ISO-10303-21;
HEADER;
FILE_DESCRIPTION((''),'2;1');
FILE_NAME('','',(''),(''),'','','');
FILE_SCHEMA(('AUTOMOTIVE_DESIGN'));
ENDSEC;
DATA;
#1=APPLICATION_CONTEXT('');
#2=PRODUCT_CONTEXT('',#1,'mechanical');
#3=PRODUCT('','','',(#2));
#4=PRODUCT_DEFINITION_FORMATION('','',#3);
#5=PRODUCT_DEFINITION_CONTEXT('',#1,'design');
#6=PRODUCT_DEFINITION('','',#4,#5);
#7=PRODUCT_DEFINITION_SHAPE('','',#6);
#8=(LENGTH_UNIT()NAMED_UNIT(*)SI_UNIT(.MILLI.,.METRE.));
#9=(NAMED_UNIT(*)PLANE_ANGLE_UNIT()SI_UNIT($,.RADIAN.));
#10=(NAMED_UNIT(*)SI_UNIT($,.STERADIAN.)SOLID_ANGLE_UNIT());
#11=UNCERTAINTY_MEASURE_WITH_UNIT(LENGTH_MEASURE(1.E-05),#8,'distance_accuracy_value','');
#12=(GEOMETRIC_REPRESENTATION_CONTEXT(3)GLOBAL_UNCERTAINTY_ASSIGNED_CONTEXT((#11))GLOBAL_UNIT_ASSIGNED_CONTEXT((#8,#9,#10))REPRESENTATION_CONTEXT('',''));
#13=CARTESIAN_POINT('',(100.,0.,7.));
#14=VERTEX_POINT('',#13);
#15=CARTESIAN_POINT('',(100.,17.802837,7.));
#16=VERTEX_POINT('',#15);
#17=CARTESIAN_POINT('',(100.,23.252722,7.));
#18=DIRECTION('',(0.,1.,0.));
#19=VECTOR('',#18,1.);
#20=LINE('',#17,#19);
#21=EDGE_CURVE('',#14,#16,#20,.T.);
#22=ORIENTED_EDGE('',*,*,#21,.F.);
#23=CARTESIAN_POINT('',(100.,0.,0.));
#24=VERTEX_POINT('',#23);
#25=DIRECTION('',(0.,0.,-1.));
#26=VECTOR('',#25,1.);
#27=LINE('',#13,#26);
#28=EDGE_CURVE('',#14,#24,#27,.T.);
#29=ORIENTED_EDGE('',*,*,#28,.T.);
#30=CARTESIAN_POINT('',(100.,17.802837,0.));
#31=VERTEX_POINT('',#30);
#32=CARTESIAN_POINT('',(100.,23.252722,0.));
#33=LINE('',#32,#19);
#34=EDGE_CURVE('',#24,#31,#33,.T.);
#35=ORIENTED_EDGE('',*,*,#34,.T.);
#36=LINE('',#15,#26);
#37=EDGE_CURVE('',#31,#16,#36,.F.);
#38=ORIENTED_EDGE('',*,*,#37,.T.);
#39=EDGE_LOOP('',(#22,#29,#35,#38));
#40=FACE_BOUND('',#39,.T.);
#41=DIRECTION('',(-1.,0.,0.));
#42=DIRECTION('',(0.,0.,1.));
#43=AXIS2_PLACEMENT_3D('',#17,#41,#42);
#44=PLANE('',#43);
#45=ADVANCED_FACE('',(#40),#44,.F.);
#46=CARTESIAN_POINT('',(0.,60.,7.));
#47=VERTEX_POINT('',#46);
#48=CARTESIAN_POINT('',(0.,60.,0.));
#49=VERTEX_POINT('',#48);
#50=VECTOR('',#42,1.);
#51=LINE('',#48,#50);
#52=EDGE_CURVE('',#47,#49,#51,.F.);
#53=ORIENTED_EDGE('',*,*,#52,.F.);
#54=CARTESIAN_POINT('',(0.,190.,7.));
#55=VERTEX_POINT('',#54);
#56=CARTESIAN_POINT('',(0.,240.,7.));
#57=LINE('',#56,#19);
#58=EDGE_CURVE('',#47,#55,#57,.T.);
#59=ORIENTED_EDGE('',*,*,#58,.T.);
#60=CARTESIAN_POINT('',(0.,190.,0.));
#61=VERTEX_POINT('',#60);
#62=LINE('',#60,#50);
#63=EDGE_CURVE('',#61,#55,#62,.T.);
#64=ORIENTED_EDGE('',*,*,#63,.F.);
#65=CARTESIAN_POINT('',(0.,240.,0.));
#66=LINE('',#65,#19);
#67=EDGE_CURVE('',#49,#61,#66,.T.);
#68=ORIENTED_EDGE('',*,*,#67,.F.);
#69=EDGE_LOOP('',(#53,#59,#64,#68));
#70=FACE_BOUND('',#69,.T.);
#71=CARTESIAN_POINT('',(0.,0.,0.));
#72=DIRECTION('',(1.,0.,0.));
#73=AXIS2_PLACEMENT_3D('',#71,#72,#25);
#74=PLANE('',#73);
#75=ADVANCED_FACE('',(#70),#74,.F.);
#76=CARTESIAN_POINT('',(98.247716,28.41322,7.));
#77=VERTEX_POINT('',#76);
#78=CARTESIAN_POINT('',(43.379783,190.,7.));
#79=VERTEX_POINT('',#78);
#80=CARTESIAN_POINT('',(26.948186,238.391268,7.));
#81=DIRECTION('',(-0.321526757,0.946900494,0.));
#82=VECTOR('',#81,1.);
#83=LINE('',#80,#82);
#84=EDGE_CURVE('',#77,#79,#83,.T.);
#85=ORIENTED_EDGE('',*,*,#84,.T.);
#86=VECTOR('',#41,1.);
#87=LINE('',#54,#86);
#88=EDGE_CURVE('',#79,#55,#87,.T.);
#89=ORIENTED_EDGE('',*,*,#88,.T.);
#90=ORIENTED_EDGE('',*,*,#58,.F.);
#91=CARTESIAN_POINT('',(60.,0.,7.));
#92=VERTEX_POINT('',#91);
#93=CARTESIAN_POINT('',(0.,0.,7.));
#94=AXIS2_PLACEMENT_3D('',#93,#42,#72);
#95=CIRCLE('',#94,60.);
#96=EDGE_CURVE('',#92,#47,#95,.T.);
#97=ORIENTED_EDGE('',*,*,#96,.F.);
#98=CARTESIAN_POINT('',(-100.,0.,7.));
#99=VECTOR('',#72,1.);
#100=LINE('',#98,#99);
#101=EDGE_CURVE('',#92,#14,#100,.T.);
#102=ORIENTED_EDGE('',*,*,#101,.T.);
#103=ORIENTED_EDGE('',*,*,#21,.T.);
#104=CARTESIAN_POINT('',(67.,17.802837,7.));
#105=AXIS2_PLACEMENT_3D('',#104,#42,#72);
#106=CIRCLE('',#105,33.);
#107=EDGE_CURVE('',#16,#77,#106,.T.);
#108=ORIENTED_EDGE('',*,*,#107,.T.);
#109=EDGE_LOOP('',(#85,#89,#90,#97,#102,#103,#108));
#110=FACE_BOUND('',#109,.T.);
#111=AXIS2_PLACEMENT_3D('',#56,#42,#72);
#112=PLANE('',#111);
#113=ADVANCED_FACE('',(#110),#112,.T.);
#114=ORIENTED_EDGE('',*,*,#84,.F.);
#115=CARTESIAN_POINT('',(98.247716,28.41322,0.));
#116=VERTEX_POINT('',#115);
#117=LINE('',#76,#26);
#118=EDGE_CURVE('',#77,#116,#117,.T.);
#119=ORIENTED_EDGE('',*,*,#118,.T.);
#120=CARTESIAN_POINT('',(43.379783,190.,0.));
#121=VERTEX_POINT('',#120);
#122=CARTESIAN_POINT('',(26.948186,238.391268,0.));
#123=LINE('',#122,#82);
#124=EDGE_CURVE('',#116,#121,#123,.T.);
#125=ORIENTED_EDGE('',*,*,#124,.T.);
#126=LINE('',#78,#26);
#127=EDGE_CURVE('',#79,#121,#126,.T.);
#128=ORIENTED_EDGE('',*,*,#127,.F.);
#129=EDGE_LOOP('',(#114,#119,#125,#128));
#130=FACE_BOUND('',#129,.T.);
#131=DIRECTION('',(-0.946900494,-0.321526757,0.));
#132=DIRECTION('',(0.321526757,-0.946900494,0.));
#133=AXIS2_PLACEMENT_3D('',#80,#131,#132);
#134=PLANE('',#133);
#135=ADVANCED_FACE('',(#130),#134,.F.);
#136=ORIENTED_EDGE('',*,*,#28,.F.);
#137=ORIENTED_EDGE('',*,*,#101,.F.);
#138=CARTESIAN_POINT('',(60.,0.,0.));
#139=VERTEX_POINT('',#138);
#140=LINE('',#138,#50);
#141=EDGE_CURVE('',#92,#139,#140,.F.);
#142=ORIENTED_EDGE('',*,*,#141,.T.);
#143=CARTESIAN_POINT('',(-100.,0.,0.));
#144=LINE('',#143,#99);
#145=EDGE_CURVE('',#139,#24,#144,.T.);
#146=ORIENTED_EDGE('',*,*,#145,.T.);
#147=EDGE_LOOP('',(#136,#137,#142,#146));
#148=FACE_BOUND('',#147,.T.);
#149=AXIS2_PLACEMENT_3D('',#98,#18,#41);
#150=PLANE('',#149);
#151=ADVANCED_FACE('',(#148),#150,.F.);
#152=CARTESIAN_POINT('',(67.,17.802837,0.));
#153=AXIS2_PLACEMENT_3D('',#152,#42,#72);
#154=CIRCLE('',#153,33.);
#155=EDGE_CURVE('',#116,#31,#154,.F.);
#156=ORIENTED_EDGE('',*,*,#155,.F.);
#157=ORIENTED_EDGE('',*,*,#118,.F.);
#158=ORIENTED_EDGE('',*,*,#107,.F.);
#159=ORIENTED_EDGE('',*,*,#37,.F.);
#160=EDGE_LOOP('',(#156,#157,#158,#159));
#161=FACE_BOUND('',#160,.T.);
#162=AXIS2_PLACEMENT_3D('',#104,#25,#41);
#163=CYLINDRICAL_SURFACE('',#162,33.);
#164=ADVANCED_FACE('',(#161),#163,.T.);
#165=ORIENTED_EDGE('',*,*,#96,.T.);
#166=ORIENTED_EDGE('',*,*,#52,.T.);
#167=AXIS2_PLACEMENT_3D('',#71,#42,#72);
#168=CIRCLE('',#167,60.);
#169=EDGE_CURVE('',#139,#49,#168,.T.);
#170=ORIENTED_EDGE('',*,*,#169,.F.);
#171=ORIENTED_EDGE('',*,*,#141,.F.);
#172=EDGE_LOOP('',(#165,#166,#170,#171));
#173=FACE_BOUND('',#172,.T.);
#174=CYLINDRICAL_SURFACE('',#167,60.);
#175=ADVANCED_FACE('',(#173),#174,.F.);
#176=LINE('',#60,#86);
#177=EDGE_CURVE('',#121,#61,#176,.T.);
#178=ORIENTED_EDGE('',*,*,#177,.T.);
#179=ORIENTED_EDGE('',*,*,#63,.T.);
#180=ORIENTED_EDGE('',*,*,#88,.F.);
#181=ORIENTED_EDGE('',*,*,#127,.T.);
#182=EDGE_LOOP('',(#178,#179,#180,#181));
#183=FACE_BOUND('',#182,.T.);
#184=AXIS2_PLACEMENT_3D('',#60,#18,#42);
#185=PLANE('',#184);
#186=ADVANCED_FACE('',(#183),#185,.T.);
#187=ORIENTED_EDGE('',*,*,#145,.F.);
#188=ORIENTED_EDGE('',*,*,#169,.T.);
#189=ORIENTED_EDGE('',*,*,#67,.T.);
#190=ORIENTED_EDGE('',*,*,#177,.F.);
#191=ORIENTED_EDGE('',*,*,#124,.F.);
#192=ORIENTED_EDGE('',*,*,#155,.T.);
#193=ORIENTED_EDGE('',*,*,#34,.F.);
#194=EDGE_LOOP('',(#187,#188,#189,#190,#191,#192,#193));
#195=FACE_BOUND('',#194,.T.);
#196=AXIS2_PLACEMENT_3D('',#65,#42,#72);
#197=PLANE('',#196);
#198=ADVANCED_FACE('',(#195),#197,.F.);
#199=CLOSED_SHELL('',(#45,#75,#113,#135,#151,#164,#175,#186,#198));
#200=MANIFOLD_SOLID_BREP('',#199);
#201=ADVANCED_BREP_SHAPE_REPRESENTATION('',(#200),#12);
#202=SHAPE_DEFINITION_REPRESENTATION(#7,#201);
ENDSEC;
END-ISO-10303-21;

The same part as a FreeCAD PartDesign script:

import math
import FreeCAD as App
import Part
import Sketcher

V = App.Vector
Q = App.Units.Quantity


def edges_at(feature, points):
    """Names of the edges that pass closest to the given points."""
    edges = feature.Shape.Edges
    near = lambda p: min(range(len(edges)), key=lambda i: edges[i].distToShape(Part.Vertex(*p))[0])
    return sorted({f"Edge{near(p) + 1}" for p in points})


def add_polygon(sketch, points):
    """Adds a closed chain of lines whose ends are joined by coincident constraints."""
    first, n = sketch.GeometryCount, len(points)
    for a, b in zip(points, points[1:] + points[:1]):
        sketch.addGeometry(Part.LineSegment(App.Vector(*a, 0), App.Vector(*b, 0)), False)
    for i in range(n):
        sketch.addConstraint(Sketcher.Constraint("Coincident", first + i, 2, first + (i + 1) % n, 1))

doc = App.newDocument("Part")
body = doc.addObject("PartDesign::Body", "Body")

# Sketch on XY plane
sketch1 = body.newObject("Sketcher::SketchObject", "Sketch")
sketch1.AttachmentSupport = (doc.getObject("XY_Plane"), [""])
sketch1.MapMode = "FlatFace"
sketch1.addGeometry(Part.LineSegment(V(-100, 0, 0), V(100, 0, 0)), False)
sketch1.addGeometry(Part.LineSegment(V(100, 0, 0), V(100, 23.3, 0)), False)
sketch1.addGeometry(Part.LineSegment(V(100, 23.3, 0), V(26.9, 238.4, 0)), False)
sketch1.addGeometry(Part.LineSegment(V(26.9, 238.4, 0), V(24.9, 238.4, 0)), False)
sketch1.addGeometry(Part.ArcOfCircle(Part.Circle(V(0, 240, 0), V(0, 0, 1), 25), math.radians(-176), math.radians(-4)), False)
sketch1.addGeometry(Part.LineSegment(V(-24.9, 238.4, 0), V(-26.9, 238.4, 0)), False)
sketch1.addGeometry(Part.LineSegment(V(-26.9, 238.4, 0), V(-100, 23.3, 0)), False)
sketch1.addGeometry(Part.LineSegment(V(-100, 23.3, 0), V(-100, 0, 0)), False)
sketch1.addConstraint(Sketcher.Constraint("Coincident", 0, 2, 1, 1))
sketch1.addConstraint(Sketcher.Constraint("Coincident", 1, 2, 2, 1))
sketch1.addConstraint(Sketcher.Constraint("Coincident", 2, 2, 3, 1))
sketch1.addConstraint(Sketcher.Constraint("Coincident", 3, 2, 4, 2))
sketch1.addConstraint(Sketcher.Constraint("Coincident", 4, 1, 5, 1))
sketch1.addConstraint(Sketcher.Constraint("Coincident", 5, 2, 6, 1))
sketch1.addConstraint(Sketcher.Constraint("Coincident", 6, 2, 7, 1))
sketch1.addConstraint(Sketcher.Constraint("Coincident", 7, 2, 0, 1))
sketch1.addConstraint(Sketcher.Constraint("Horizontal", 0))
sketch1.addConstraint(Sketcher.Constraint("Vertical", 1))
sketch1.addConstraint(Sketcher.Constraint("Horizontal", 3))
sketch1.addConstraint(Sketcher.Constraint("Horizontal", 5))
sketch1.addConstraint(Sketcher.Constraint("Vertical", 7))
sketch1.addConstraint(Sketcher.Constraint("Symmetric", 0, 2, 7, 2, -1, 1))
sketch1.addConstraint(Sketcher.Constraint("Symmetric", 3, 2, 4, 1, -2))
sketch1.addConstraint(Sketcher.Constraint("Horizontal", 1, 2, 6, 2))
sketch1.addConstraint(Sketcher.Constraint("Equal", 3, 5))
sketch1.addConstraint(Sketcher.Constraint("Radius", 4, Q("25 mm")))
sketch1.addConstraint(Sketcher.Constraint("DistanceX", 0, 1, 0, 2, Q("200 mm")))
sketch1.addConstraint(Sketcher.Constraint("DistanceX", 3, 2, 3, 1, Q("2 mm")))
sketch1.addConstraint(Sketcher.Constraint("DistanceY", -1, 1, 4, 3, Q("240 mm")))
sketch1.addConstraint(Sketcher.Constraint("DistanceY", 1, 1, 1, 2, Q("23.252722 mm")))
sketch1.addConstraint(Sketcher.Constraint("Distance", 2, Q("227.202908 mm")))
pad1 = body.newObject("PartDesign::Pad", "Pad")
pad1.Profile = sketch1
pad1.Length = 7
doc.recompute()

fillet = body.newObject("PartDesign::Fillet", "Fillet")
fillet.Base = (pad1, edges_at(pad1, [(-100, 23.253, 3.5), (100, 23.253, 3.5)]))
fillet.Radius = 33

# Sketch on XY plane
sketch2 = body.newObject("Sketcher::SketchObject", "Sketch001")
sketch2.AttachmentSupport = (doc.getObject("XY_Plane"), [""])
sketch2.MapMode = "FlatFace"
sketch2.AttachmentOffset = App.Placement(V(0, 0, 7), App.Rotation())
sketch2.addGeometry(Part.Circle(V(0, 0, 0), V(0, 0, 1), 60), False)
sketch2.addConstraint(Sketcher.Constraint("Coincident", 0, 3, -1, 1))
sketch2.addConstraint(Sketcher.Constraint("Diameter", 0, Q("120 mm")))
pocket1 = body.newObject("PartDesign::Pocket", "Pocket")
pocket1.Profile = sketch2
pocket1.Type = "ThroughAll"

# Sketch on YZ plane
sketch3 = body.newObject("Sketcher::SketchObject", "Sketch002")
sketch3.AttachmentSupport = (doc.getObject("YZ_Plane"), [""])
sketch3.MapMode = "FlatFace"
add_polygon(sketch3, [(349, 93), (-132, 93), (-132, -88), (349, -88)])  # lines 0-3
sketch3.addConstraint(Sketcher.Constraint("Horizontal", 0))
sketch3.addConstraint(Sketcher.Constraint("Vertical", 1))
sketch3.addConstraint(Sketcher.Constraint("Horizontal", 2))
sketch3.addConstraint(Sketcher.Constraint("Vertical", 3))
sketch3.addConstraint(Sketcher.Constraint("DistanceX", 0, 2, 0, 1, Q("480.788588 mm")))
sketch3.addConstraint(Sketcher.Constraint("DistanceY", 1, 2, 1, 1, Q("181.044086 mm")))
sketch3.addConstraint(Sketcher.Constraint("DistanceX", 0, 2, -1, 1, Q("132.263759 mm")))
sketch3.addConstraint(Sketcher.Constraint("DistanceY", -1, 1, 0, 2, Q("93.24558 mm")))
pocket2 = body.newObject("PartDesign::Pocket", "Pocket001")
pocket2.Profile = sketch3
pocket2.Type = "ThroughAll"

# Sketch on XZ plane
sketch4 = body.newObject("Sketcher::SketchObject", "Sketch003")
sketch4.AttachmentSupport = (doc.getObject("XZ_Plane"), [""])
sketch4.MapMode = "FlatFace"
sketch4.AttachmentOffset = App.Placement(V(0, 0, -190), App.Rotation())
add_polygon(sketch4, [(-39, -28), (-39, 22), (131, 22), (131, -28)])  # lines 0-3
sketch4.addConstraint(Sketcher.Constraint("Vertical", 0))
sketch4.addConstraint(Sketcher.Constraint("Horizontal", 1))
sketch4.addConstraint(Sketcher.Constraint("Vertical", 2))
sketch4.addConstraint(Sketcher.Constraint("Horizontal", 3))
sketch4.addConstraint(Sketcher.Constraint("DistanceY", 0, 1, 0, 2, Q("49.0975 mm")))
sketch4.addConstraint(Sketcher.Constraint("DistanceX", 1, 1, 1, 2, Q("169.768955 mm")))
sketch4.addConstraint(Sketcher.Constraint("DistanceX", 0, 2, -1, 1, Q("39.188479 mm")))
sketch4.addConstraint(Sketcher.Constraint("DistanceY", -1, 1, 0, 2, Q("21.552896 mm")))
pocket3 = body.newObject("PartDesign::Pocket", "Pocket002")
pocket3.Profile = sketch4
pocket3.Type = "ThroughAll"

doc.recompute()
